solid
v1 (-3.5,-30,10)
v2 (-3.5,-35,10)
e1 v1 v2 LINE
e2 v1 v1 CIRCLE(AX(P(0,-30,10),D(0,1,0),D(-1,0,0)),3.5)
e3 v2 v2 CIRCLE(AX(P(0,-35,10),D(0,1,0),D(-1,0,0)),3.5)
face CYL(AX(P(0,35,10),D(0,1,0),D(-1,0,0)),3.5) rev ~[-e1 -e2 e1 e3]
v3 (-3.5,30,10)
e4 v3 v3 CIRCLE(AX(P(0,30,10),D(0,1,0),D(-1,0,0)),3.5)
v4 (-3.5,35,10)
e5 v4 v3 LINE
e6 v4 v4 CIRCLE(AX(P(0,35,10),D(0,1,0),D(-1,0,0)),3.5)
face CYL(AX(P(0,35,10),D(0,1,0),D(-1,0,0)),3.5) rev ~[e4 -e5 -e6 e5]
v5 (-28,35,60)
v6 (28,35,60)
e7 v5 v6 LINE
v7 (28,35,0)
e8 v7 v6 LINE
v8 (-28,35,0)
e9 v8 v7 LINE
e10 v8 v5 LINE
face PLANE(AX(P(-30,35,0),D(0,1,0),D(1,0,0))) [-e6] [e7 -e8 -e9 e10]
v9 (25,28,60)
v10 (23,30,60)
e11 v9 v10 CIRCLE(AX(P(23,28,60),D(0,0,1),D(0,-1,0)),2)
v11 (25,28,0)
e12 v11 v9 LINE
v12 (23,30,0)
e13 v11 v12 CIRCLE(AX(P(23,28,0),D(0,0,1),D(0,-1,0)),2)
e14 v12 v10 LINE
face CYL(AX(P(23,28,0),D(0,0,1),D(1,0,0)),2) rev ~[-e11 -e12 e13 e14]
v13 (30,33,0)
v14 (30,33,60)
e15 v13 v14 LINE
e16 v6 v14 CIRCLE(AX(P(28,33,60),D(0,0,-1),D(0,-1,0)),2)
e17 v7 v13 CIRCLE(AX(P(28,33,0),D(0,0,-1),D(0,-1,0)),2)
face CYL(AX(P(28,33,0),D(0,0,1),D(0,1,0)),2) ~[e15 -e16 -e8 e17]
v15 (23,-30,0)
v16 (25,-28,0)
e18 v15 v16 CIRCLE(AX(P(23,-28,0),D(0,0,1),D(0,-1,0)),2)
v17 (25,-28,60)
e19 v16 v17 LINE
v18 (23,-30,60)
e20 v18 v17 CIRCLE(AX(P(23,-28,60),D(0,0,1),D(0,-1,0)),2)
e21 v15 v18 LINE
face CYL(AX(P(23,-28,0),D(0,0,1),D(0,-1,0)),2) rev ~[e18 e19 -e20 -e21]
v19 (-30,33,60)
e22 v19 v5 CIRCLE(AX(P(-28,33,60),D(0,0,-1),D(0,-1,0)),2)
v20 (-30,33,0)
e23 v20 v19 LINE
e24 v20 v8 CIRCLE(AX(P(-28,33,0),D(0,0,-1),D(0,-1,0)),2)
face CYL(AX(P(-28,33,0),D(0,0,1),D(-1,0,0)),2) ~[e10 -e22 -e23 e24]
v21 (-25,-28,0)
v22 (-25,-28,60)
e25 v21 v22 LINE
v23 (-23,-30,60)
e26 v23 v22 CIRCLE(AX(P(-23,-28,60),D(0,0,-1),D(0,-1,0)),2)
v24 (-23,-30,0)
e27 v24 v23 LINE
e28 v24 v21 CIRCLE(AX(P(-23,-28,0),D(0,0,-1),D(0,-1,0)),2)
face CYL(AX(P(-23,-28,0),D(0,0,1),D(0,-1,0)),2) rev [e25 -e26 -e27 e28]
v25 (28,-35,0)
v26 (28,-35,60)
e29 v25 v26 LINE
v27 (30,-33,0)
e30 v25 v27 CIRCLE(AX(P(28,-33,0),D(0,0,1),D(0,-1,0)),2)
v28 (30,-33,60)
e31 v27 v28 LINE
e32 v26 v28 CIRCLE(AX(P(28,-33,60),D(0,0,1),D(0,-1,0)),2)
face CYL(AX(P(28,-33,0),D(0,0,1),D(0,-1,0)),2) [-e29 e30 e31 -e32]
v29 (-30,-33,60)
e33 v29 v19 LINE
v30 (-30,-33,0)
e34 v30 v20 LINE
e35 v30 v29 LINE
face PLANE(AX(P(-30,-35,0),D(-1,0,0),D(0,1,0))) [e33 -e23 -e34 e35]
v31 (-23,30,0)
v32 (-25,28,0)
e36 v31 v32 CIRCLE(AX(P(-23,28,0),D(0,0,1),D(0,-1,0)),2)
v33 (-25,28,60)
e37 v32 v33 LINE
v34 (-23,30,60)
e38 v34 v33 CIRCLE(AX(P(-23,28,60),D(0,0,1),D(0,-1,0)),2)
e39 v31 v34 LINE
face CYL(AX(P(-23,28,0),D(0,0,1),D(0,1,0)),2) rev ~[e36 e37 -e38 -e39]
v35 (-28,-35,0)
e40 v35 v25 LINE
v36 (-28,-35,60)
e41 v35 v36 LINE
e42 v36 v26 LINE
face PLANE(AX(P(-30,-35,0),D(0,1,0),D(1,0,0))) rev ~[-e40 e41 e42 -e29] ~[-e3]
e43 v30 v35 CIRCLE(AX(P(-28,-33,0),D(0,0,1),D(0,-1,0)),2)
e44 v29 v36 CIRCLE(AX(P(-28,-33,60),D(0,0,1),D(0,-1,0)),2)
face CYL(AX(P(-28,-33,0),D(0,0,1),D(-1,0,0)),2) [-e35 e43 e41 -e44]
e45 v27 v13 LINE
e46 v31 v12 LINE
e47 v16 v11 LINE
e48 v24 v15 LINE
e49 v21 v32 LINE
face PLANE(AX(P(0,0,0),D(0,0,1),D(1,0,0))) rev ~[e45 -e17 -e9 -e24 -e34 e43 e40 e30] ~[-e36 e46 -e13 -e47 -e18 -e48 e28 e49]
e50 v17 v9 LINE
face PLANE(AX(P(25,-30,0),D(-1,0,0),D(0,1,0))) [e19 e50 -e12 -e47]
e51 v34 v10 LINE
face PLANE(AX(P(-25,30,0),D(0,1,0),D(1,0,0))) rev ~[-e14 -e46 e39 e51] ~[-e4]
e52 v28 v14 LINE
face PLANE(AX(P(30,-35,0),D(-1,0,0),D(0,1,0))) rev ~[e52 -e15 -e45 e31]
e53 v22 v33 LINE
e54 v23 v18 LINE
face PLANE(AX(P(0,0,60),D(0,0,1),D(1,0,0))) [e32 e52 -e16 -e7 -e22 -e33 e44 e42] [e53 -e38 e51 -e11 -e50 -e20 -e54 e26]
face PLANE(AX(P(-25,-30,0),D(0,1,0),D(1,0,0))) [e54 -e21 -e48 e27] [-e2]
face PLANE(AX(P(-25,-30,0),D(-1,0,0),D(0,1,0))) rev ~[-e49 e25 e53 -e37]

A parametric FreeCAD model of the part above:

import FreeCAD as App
import Part
import Sketcher


def edges_at(feature, points):
    """Names of the edges that pass closest to the given points."""
    edges = feature.Shape.Edges
    near = lambda p: min(range(len(edges)), key=lambda i: edges[i].distToShape(Part.Vertex(*p))[0])
    return sorted({f"Edge{near(p) + 1}" for p in points})


def add_polygon(sketch, points):
    """Adds a closed chain of lines whose ends are joined by coincident constraints."""
    first, n = sketch.GeometryCount, len(points)
    for a, b in zip(points, points[1:] + points[:1]):
        sketch.addGeometry(Part.LineSegment(App.Vector(*a, 0), App.Vector(*b, 0)), False)
    for i in range(n):
        sketch.addConstraint(Sketcher.Constraint("Coincident", first + i, 2, first + (i + 1) % n, 1))

doc = App.newDocument("Part")
body = doc.addObject("PartDesign::Body", "Body")

sketch1 = doc.addObject("Sketcher::SketchObject", "Sketch")
body.addObject(sketch1)
sketch1.AttachmentSupport = (doc.XY_Plane, [""])
sketch1.MapMode = "FlatFace"
add_polygon(sketch1, [(-30, 35), (-30, -35), (30, -35), (30, 35)])
add_polygon(sketch1, [(25, -30), (-25, -30), (-25, 30), (25, 30)])
sketch1.addConstraint([
    Sketcher.Constraint("Vertical", 0),
    Sketcher.Constraint("Horizontal", 1),
    Sketcher.Constraint("Vertical", 2),
    Sketcher.Constraint("Horizontal", 3),
    Sketcher.Constraint("Horizontal", 4),
    Sketcher.Constraint("Vertical", 5),
    Sketcher.Constraint("Horizontal", 6),
    Sketcher.Constraint("Vertical", 7),
    Sketcher.Constraint("Symmetric", 0, 2, 2, 2, -1, 1),
    Sketcher.Constraint("Symmetric", 4, 2, 6, 2, -1, 1),
    Sketcher.Constraint("Equal", 3, 5),
    Sketcher.Constraint("DistanceX", 1, 1, 1, 2, 60.0),
    Sketcher.Constraint("DistanceX", 4, 2, 4, 1, 50.0),
    Sketcher.Constraint("DistanceY", 0, 2, 0, 1, 70.0),
])
pad1 = doc.addObject("PartDesign::Pad", "Pad")
body.addObject(pad1)
pad1.Profile = sketch1
pad1.Length = 60
doc.recompute()

fillet = doc.addObject("PartDesign::Fillet", "Fillet")
body.addObject(fillet)
fillet.Base = (pad1, edges_at(pad1, [
    (-30, 35, 30),
    (30, 35, 30),
    (30, -35, 30),
    (-30, -35, 30),
    (-25, 30, 30),
    (25, 30, 30),
    (25, -30, 30),
    (-25, -30, 30),
]))
fillet.Radius = 2

sketch2 = doc.addObject("Sketcher::SketchObject", "Sketch001")
body.addObject(sketch2)
sketch2.AttachmentSupport = (doc.XZ_Plane, [""])
sketch2.MapMode = "FlatFace"
sketch2.AttachmentOffset = App.Placement(App.Vector(0, 0, -35), App.Rotation())
sketch2.addGeometry(Part.Circle(App.Vector(0, 10, 0), App.Vector(0, 0, 1), 3.5), False)
sketch2.addConstraint([
    Sketcher.Constraint("PointOnObject", 0, 3, -2),
    Sketcher.Constraint("Diameter", 0, 7.0),
    Sketcher.Constraint("DistanceY", -1, 1, 0, 3, 10.0),
])
pocket1 = doc.addObject("PartDesign::Pocket", "Pocket")
body.addObject(pocket1)
pocket1.Profile = sketch2
pocket1.Length = 70
pocket1.Reversed = True

doc.recompute()
